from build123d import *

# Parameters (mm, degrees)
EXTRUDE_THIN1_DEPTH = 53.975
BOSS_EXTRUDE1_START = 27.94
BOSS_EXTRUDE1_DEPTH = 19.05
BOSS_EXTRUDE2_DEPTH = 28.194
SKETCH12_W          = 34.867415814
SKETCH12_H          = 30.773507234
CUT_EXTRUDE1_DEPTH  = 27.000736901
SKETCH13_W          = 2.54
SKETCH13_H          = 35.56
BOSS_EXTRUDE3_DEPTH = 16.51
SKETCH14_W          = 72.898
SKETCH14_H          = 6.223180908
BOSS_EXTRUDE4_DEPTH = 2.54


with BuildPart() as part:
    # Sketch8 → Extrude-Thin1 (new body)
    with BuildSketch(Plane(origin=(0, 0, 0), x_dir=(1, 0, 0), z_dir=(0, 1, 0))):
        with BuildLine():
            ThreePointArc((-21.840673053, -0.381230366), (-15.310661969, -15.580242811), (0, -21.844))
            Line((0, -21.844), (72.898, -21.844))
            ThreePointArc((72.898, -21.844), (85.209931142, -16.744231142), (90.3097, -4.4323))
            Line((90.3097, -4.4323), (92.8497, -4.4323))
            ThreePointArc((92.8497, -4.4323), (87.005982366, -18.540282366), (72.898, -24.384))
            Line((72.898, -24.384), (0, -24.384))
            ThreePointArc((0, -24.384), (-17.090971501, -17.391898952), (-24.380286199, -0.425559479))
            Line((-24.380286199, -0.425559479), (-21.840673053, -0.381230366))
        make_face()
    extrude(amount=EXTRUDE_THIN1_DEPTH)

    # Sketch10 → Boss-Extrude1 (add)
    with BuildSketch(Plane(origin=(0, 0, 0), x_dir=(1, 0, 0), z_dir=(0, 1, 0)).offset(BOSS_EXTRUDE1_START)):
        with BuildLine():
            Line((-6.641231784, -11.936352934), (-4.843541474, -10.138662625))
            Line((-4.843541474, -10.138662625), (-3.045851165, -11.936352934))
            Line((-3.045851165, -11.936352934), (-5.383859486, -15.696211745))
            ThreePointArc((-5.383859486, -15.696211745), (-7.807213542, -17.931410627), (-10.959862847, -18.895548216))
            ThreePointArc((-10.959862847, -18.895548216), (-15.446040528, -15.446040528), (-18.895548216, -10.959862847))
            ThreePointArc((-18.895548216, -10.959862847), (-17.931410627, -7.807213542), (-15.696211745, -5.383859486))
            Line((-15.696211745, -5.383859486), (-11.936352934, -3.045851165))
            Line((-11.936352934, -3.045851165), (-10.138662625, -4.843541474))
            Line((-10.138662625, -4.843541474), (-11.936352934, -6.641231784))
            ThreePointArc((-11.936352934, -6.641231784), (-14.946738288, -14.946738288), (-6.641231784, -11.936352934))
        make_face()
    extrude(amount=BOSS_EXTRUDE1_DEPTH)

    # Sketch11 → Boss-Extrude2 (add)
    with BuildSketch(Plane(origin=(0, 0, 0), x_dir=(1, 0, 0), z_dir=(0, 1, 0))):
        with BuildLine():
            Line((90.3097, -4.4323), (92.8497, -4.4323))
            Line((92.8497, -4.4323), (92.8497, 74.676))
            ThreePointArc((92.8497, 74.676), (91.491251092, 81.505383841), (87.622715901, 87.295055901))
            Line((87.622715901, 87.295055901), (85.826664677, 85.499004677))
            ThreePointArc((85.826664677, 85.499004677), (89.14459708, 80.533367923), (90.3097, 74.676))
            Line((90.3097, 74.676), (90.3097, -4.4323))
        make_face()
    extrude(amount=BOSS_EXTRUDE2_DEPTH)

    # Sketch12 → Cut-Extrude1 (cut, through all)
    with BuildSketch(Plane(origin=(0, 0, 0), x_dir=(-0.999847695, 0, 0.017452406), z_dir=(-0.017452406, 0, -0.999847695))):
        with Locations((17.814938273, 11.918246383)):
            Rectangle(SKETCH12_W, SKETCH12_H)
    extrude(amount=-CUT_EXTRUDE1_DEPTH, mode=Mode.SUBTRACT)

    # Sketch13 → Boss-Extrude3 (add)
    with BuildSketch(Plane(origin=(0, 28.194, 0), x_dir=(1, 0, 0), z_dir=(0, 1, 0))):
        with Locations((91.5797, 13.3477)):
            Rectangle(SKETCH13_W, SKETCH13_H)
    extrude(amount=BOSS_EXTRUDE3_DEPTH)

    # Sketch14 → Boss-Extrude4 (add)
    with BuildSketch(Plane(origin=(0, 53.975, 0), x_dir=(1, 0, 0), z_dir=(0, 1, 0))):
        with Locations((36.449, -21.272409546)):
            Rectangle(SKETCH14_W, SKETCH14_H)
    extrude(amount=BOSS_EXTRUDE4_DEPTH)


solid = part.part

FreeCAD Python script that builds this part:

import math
import FreeCAD as App
import Part
import Sketcher
Q = App.Units.Quantity

doc = App.newDocument("Part")
body = doc.addObject("PartDesign::Body", "Body")

# Sketch on XZ plane
sketch1 = doc.addObject("Sketcher::SketchObject", "Sketch")
body.addObject(sketch1)
sketch1.AttachmentSupport = (doc.XZ_Plane, [""])
sketch1.MapMode = "FlatFace"
sketch1.addGeometry(Part.ArcOfCircle(Part.Circle(App.Vector(0, 0, 0), App.Vector(0, 0, 1), 21.8), math.radians(90), math.radians(179)), False)
sketch1.addGeometry(Part.LineSegment(App.Vector(-21.8, 0.4, 0), App.Vector(-24.4, 0.4, 0)), False)
sketch1.addGeometry(Part.ArcOfCircle(Part.Circle(App.Vector(0, 0, 0), App.Vector(0, 0, 1), 24.4), math.radians(90), math.radians(179)), False)
sketch1.addGeometry(Part.LineSegment(App.Vector(0, 24.4, 0), App.Vector(72.9, 24.4, 0)), False)
sketch1.addGeometry(Part.ArcOfCircle(Part.Circle(App.Vector(72.9, 4.4, 0), App.Vector(0, 0, 1), 20), math.radians(0), math.radians(90)), False)
sketch1.addGeometry(Part.LineSegment(App.Vector(92.8, 4.4, 0), App.Vector(90.3, 4.4, 0)), False)
sketch1.addGeometry(Part.ArcOfCircle(Part.Circle(App.Vector(72.9, 4.4, 0), App.Vector(0, 0, 1), 17.4), math.radians(0), math.radians(90)), False)
sketch1.addGeometry(Part.LineSegment(App.Vector(72.9, 21.8, 0), App.Vector(0, 21.8, 0)), False)
sketch1.addConstraint(Sketcher.Constraint("Coincident", 0, 2, 1, 1))
sketch1.addConstraint(Sketcher.Constraint("Coincident", 1, 2, 2, 2))
sketch1.addConstraint(Sketcher.Constraint("Tangent", 2, 1, 3, 1))
sketch1.addConstraint(Sketcher.Constraint("Tangent", 3, 2, 4, 2))
sketch1.addConstraint(Sketcher.Constraint("Coincident", 4, 1, 5, 1))
sketch1.addConstraint(Sketcher.Constraint("Coincident", 5, 2, 6, 1))
sketch1.addConstraint(Sketcher.Constraint("Tangent", 6, 2, 7, 1))
sketch1.addConstraint(Sketcher.Constraint("Tangent", 7, 2, 0, 1))
sketch1.addConstraint(Sketcher.Constraint("Horizontal", 3))
sketch1.addConstraint(Sketcher.Constraint("Horizontal", 5))
sketch1.addConstraint(Sketcher.Constraint("Horizontal", 7))
sketch1.addConstraint(Sketcher.Constraint("Coincident", 0, 3, -1, 1))
sketch1.addConstraint(Sketcher.Constraint("Coincident", 2, 3, -1, 1))
sketch1.addConstraint(Sketcher.Constraint("Coincident", 6, 3, 4, 3))
sketch1.addConstraint(Sketcher.Constraint("Horizontal", 6, 3, 4, 1))
sketch1.addConstraint(Sketcher.Constraint("Radius", 0, Q("0.86 in")))
sketch1.addConstraint(Sketcher.Constraint("Radius", 2, Q("0.96 in")))
sketch1.addConstraint(Sketcher.Constraint("Angle", 1, Q("179 deg")))
sketch1.addConstraint(Sketcher.Constraint("DistanceX", 3, 1, 3, 2, Q("2.87 in")))
sketch1.addConstraint(Sketcher.Constraint("Radius", 4, Q("0.7855 in")))
sketch1.addConstraint(Sketcher.Constraint("DistanceY", -1, 1, 0, 2, Q("0.38123 mm")))
pad1 = doc.addObject("PartDesign::Pad", "Pad")
body.addObject(pad1)
pad1.Profile = sketch1
pad1.Length = Q("2.125 in")
pad1.Reversed = True

# Sketch on XZ plane
sketch2 = doc.addObject("Sketcher::SketchObject", "Sketch001")
body.addObject(sketch2)
sketch2.AttachmentSupport = (doc.XZ_Plane, [""])
sketch2.MapMode = "FlatFace"
sketch2.AttachmentOffset = App.Placement(App.Vector(0, 0, -1.1 * 25.4), App.Rotation())
sketch2.addGeometry(Part.LineSegment(App.Vector(-4.8, 10.1, 0), App.Vector(-6.6, 11.9, 0)), False)
sketch2.addGeometry(Part.ArcOfCircle(Part.Circle(App.Vector(-11.5, 11.5, 0), App.Vector(0, 0, 1), 4.9), math.radians(5), math.radians(265)), False)
sketch2.addGeometry(Part.LineSegment(App.Vector(-11.9, 6.6, 0), App.Vector(-10.1, 4.8, 0)), False)
sketch2.addGeometry(Part.LineSegment(App.Vector(-10.1, 4.8, 0), App.Vector(-11.9, 3, 0)), False)
sketch2.addGeometry(Part.LineSegment(App.Vector(-11.9, 3, 0), App.Vector(-15.7, 5.4, 0)), False)
sketch2.addGeometry(Part.ArcOfCircle(Part.Circle(App.Vector(-11.5, 11.5, 0), App.Vector(0, 0, 1), 7.4), math.radians(-176), math.radians(-124)), False)
sketch2.addGeometry(Part.ArcOfCircle(Part.Circle(App.Vector(0, 0, 0), App.Vector(0, 0, 1), 21.8), math.radians(120), math.radians(150)), False)
sketch2.addGeometry(Part.ArcOfCircle(Part.Circle(App.Vector(-11.5, 11.5, 0), App.Vector(0, 0, 1), 7.4), math.radians(34), math.radians(86)), False)
sketch2.addGeometry(Part.LineSegment(App.Vector(-5.4, 15.7, 0), App.Vector(-3, 11.9, 0)), False)
sketch2.addGeometry(Part.LineSegment(App.Vector(-3, 11.9, 0), App.Vector(-4.8, 10.1, 0)), False)
sketch2.addConstraint(Sketcher.Constraint("Coincident", 0, 2, 1, 1))
sketch2.addConstraint(Sketcher.Constraint("Coincident", 1, 2, 2, 1))
sketch2.addConstraint(Sketcher.Constraint("Coincident", 2, 2, 3, 1))
sketch2.addConstraint(Sketcher.Constraint("Coincident", 3, 2, 4, 1))
sketch2.addConstraint(Sketcher.Constraint("Coincident", 4, 2, 5, 2))
sketch2.addConstraint(Sketcher.Constraint("Coincident", 5, 1, 6, 2))
sketch2.addConstraint(Sketcher.Constraint("Coincident", 6, 1, 7, 2))
sketch2.addConstraint(Sketcher.Constraint("Coincident", 7, 1, 8, 1))
sketch2.addConstraint(Sketcher.Constraint("Coincident", 8, 2, 9, 1))
sketch2.addConstraint(Sketcher.Constraint("Coincident", 9, 2, 0, 1))
sketch2.addConstraint(Sketcher.Constraint("Coincident", 6, 3, -1, 1))
sketch2.addConstraint(Sketcher.Constraint("Coincident", 5, 3, 1, 3))
sketch2.addConstraint(Sketcher.Constraint("Coincident", 7, 3, 1, 3))
sketch2.addConstraint(Sketcher.Constraint("Equal", 5, 7))
sketch2.addConstraint(Sketcher.Constraint("Parallel", 0, 2))
sketch2.addConstraint(Sketcher.Constraint("Perpendicular", 2, 3))
sketch2.addConstraint(Sketcher.Constraint("Parallel", 3, 9))
sketch2.addConstraint(Sketcher.Constraint("Horizontal", 0, 2, 8, 2))
sketch2.addConstraint(Sketcher.Constraint("Vertical", 1, 2, 3, 2))
sketch2.addConstraint(Sketcher.Constraint("Equal", 0, 2))
sketch2.addConstraint(Sketcher.Constraint("Equal", 2, 3))
sketch2.addConstraint(Sketcher.Constraint("Equal", 4, 8))
sketch2.addConstraint(Sketcher.Constraint("Radius", 6, Q("0.86 in")))
sketch2.addConstraint(Sketcher.Constraint("Radius", 1, Q("0.192 in")))
sketch2.addConstraint(Sketcher.Constraint("Radius", 5, Q("0.292 in")))
sketch2.addConstraint(Sketcher.Constraint("Distance", 0, Q("2.542318 mm")))
sketch2.addConstraint(Sketcher.Constraint("DistanceX", 1, 3, -1, 1, Q("11.49832 mm")))
sketch2.addConstraint(Sketcher.Constraint("DistanceY", -1, 1, 1, 3, Q("11.49832 mm")))
sketch2.addConstraint(Sketcher.Constraint("DistanceX", 0, 2, -1, 1, Q("6.641232 mm")))
sketch2.addConstraint(Sketcher.Constraint("DistanceY", -1, 1, 1, 2, Q("6.641232 mm")))
sketch2.addConstraint(Sketcher.Constraint("DistanceX", 4, 2, -1, 1, Q("15.696212 mm")))
pad2 = doc.addObject("PartDesign::Pad", "Pad001")
body.addObject(pad2)
pad2.Profile = sketch2
pad2.Length = Q("0.75 in")
pad2.Reversed = True

# Sketch on XZ plane
sketch3 = doc.addObject("Sketcher::SketchObject", "Sketch002")
body.addObject(sketch3)
sketch3.AttachmentSupport = (doc.XZ_Plane, [""])
sketch3.MapMode = "FlatFace"
sketch3.addGeometry(Part.LineSegment(App.Vector(90.3, 4.4, 0), App.Vector(92.8, 4.4, 0)), False)
sketch3.addGeometry(Part.LineSegment(App.Vector(92.8, 4.4, 0), App.Vector(92.8, -74.7, 0)), False)
sketch3.addGeometry(Part.ArcOfCircle(Part.Circle(App.Vector(75, -74.7, 0), App.Vector(0, 0, 1), 17.8), math.radians(-45), math.radians(0)), False)
sketch3.addGeometry(Part.LineSegment(App.Vector(87.6, -87.3, 0), App.Vector(85.8, -85.5, 0)), False)
sketch3.addGeometry(Part.ArcOfCircle(Part.Circle(App.Vector(75, -74.7, 0), App.Vector(0, 0, 1), 15.3), math.radians(-45), math.radians(0)), False)
sketch3.addGeometry(Part.LineSegment(App.Vector(90.3, -74.7, 0), App.Vector(90.3, 4.4, 0)), False)
sketch3.addConstraint(Sketcher.Constraint("Coincident", 0, 2, 1, 1))
sketch3.addConstraint(Sketcher.Constraint("Tangent", 1, 2, 2, 2))
sketch3.addConstraint(Sketcher.Constraint("Coincident", 2, 1, 3, 1))
sketch3.addConstraint(Sketcher.Constraint("Coincident", 3, 2, 4, 1))
sketch3.addConstraint(Sketcher.Constraint("Tangent", 4, 2, 5, 1))
sketch3.addConstraint(Sketcher.Constraint("Coincident", 5, 2, 0, 1))
sketch3.addConstraint(Sketcher.Constraint("Horizontal", 0))
sketch3.addConstraint(Sketcher.Constraint("Vertical", 1))
sketch3.addConstraint(Sketcher.Constraint("Vertical", 5))
sketch3.addConstraint(Sketcher.Constraint("Coincident", 4, 3, 2, 3))
sketch3.addConstraint(Sketcher.Constraint("DistanceX", 0, 1, 0, 2, Q("0.1 in")))
sketch3.addConstraint(Sketcher.Constraint("Angle", 3, Q("135 deg")))
sketch3.addConstraint(Sketcher.Constraint("Radius", 2, Q("0.7026 in")))
sketch3.addConstraint(Sketcher.Constraint("DistanceY", 2, 3, -1, 1, Q("2.94 in")))
sketch3.addConstraint(Sketcher.Constraint("DistanceY", 1, 2, 1, 1, Q("3.1145 in")))
sketch3.addConstraint(Sketcher.Constraint("DistanceX", -1, 1, 2, 3, Q("2.9529 in")))
sketch3.addConstraint(Sketcher.Constraint("DistanceX", -1, 1, 2, 1, Q("87.622716 mm")))
pad3 = doc.addObject("PartDesign::Pad", "Pad002")
body.addObject(pad3)
pad3.Profile = sketch3
pad3.Length = Q("1.11 in")
pad3.Reversed = True

# Sketch on an angled plane
sketch4 = doc.addObject("Sketcher::SketchObject", "Sketch003")
body.addObject(sketch4)
sketch4.Placement = App.Placement(App.Vector(0, 0, 0), App.Rotation(App.Vector(-0.999847695, 0, 0.017452406), App.Vector(0, 1, 0), App.Vector(-0.017452406, 0, -0.999847695), "ZXY"))
sketch4.addGeometry(Part.LineSegment(App.Vector(0, 27, 0), App.Vector(0, -3, 0)), False)
sketch4.addGeometry(Part.LineSegment(App.Vector(0, -3, 0), App.Vector(35, -3, 0)), False)
sketch4.addGeometry(Part.LineSegment(App.Vector(35, -3, 0), App.Vector(35, 27, 0)), False)
sketch4.addGeometry(Part.LineSegment(App.Vector(35, 27, 0), App.Vector(0, 27, 0)), False)
sketch4.addConstraint(Sketcher.Constraint("Coincident", 0, 2, 1, 1))
sketch4.addConstraint(Sketcher.Constraint("Coincident", 1, 2, 2, 1))
sketch4.addConstraint(Sketcher.Constraint("Coincident", 2, 2, 3, 1))
sketch4.addConstraint(Sketcher.Constraint("Coincident", 3, 2, 0, 1))
sketch4.addConstraint(Sketcher.Constraint("Vertical", 0))
sketch4.addConstraint(Sketcher.Constraint("Horizontal", 1))
sketch4.addConstraint(Sketcher.Constraint("Vertical", 2))
sketch4.addConstraint(Sketcher.Constraint("Horizontal", 3))
sketch4.addConstraint(Sketcher.Constraint("DistanceY", -1, 1, 2, 2, Q("1.075 in")))
sketch4.addConstraint(Sketcher.Constraint("DistanceX", 1, 1, 1, 2, Q("34.867416 mm")))
sketch4.addConstraint(Sketcher.Constraint("DistanceY", 0, 2, 0, 1, Q("30.773507 mm")))
sketch4.addConstraint(Sketcher.Constraint("DistanceX", -1, 1, 0, 2, Q("0.38123 mm")))
pocket1 = doc.addObject("PartDesign::Pocket", "Pocket")
body.addObject(pocket1)
pocket1.Profile = sketch4
pocket1.Type = "ThroughAll"

# Sketch on XZ plane
sketch5 = doc.addObject("Sketcher::SketchObject", "Sketch004")
body.addObject(sketch5)
sketch5.AttachmentSupport = (doc.XZ_Plane, [""])
sketch5.MapMode = "FlatFace"
sketch5.AttachmentOffset = App.Placement(App.Vector(0, 0, -1.11 * 25.4), App.Rotation())
sketch5.addGeometry(Part.LineSegment(App.Vector(90.3, -31.1, 0), App.Vector(90.3, 4.4, 0)), False)
sketch5.addGeometry(Part.LineSegment(App.Vector(90.3, 4.4, 0), App.Vector(92.8, 4.4, 0)), False)
sketch5.addGeometry(Part.LineSegment(App.Vector(92.8, 4.4, 0), App.Vector(92.8, -31.1, 0)), False)
sketch5.addGeometry(Part.LineSegment(App.Vector(92.8, -31.1, 0), App.Vector(90.3, -31.1, 0)), False)
sketch5.addConstraint(Sketcher.Constraint("Coincident", 0, 2, 1, 1))
sketch5.addConstraint(Sketcher.Constraint("Coincident", 1, 2, 2, 1))
sketch5.addConstraint(Sketcher.Constraint("Coincident", 2, 2, 3, 1))
sketch5.addConstraint(Sketcher.Constraint("Coincident", 3, 2, 0, 1))
sketch5.addConstraint(Sketcher.Constraint("Vertical", 0))
sketch5.addConstraint(Sketcher.Constraint("Horizontal", 1))
sketch5.addConstraint(Sketcher.Constraint("Vertical", 2))
sketch5.addConstraint(Sketcher.Constraint("Horizontal", 3))
sketch5.addConstraint(Sketcher.Constraint("DistanceX", 1, 1, 1, 2, Q("0.1 in")))
sketch5.addConstraint(Sketcher.Constraint("DistanceY", 0, 1, 0, 2, Q("1.4 in")))
sketch5.addConstraint(Sketcher.Constraint("DistanceX", -1, 1, 0, 2, Q("3.5555 in")))
sketch5.addConstraint(Sketcher.Constraint("DistanceY", -1, 1, 0, 2, Q("0.1745 in")))
pad4 = doc.addObject("PartDesign::Pad", "Pad003")
body.addObject(pad4)
pad4.Profile = sketch5
pad4.Length = Q("0.65 in")
pad4.Reversed = True

# Sketch on XZ plane
sketch6 = doc.addObject("Sketcher::SketchObject", "Sketch005")
body.addObject(sketch6)
sketch6.AttachmentSupport = (doc.XZ_Plane, [""])
sketch6.MapMode = "FlatFace"
sketch6.AttachmentOffset = App.Placement(App.Vector(0, 0, -2.125 * 25.4), App.Rotation())
sketch6.addGeometry(Part.LineSegment(App.Vector(0, 18, 0), App.Vector(0, 24, 0)), False)
sketch6.addGeometry(Part.LineSegment(App.Vector(0, 24, 0), App.Vector(73, 24, 0)), False)
sketch6.addGeometry(Part.LineSegment(App.Vector(73, 24, 0), App.Vector(73, 18, 0)), False)
sketch6.addGeometry(Part.LineSegment(App.Vector(73, 18, 0), App.Vector(0, 18, 0)), False)
sketch6.addConstraint(Sketcher.Constraint("Coincident", 0, 2, 1, 1))
sketch6.addConstraint(Sketcher.Constraint("Coincident", 1, 2, 2, 1))
sketch6.addConstraint(Sketcher.Constraint("Coincident", 2, 2, 3, 1))
sketch6.addConstraint(Sketcher.Constraint("Coincident", 3, 2, 0, 1))
sketch6.addConstraint(Sketcher.Constraint("Vertical", 0))
sketch6.addConstraint(Sketcher.Constraint("Horizontal", 1))
sketch6.addConstraint(Sketcher.Constraint("Vertical", 2))
sketch6.addConstraint(Sketcher.Constraint("Horizontal", 3))
sketch6.addConstraint(Sketcher.Constraint("PointOnObject", 0, 2, -2))
sketch6.addConstraint(Sketcher.Constraint("DistanceX", 1, 1, 1, 2, Q("2.87 in")))
sketch6.addConstraint(Sketcher.Constraint("DistanceY", -1, 1, 0, 2, Q("0.96 in")))
sketch6.addConstraint(Sketcher.Constraint("DistanceY", 0, 1, 0, 2, Q("6.223181 mm")))
pad5 = doc.addObject("PartDesign::Pad", "Pad004")
body.addObject(pad5)
pad5.Profile = sketch6
pad5.Length = Q("0.1 in")
pad5.Reversed = True

doc.recompute()
